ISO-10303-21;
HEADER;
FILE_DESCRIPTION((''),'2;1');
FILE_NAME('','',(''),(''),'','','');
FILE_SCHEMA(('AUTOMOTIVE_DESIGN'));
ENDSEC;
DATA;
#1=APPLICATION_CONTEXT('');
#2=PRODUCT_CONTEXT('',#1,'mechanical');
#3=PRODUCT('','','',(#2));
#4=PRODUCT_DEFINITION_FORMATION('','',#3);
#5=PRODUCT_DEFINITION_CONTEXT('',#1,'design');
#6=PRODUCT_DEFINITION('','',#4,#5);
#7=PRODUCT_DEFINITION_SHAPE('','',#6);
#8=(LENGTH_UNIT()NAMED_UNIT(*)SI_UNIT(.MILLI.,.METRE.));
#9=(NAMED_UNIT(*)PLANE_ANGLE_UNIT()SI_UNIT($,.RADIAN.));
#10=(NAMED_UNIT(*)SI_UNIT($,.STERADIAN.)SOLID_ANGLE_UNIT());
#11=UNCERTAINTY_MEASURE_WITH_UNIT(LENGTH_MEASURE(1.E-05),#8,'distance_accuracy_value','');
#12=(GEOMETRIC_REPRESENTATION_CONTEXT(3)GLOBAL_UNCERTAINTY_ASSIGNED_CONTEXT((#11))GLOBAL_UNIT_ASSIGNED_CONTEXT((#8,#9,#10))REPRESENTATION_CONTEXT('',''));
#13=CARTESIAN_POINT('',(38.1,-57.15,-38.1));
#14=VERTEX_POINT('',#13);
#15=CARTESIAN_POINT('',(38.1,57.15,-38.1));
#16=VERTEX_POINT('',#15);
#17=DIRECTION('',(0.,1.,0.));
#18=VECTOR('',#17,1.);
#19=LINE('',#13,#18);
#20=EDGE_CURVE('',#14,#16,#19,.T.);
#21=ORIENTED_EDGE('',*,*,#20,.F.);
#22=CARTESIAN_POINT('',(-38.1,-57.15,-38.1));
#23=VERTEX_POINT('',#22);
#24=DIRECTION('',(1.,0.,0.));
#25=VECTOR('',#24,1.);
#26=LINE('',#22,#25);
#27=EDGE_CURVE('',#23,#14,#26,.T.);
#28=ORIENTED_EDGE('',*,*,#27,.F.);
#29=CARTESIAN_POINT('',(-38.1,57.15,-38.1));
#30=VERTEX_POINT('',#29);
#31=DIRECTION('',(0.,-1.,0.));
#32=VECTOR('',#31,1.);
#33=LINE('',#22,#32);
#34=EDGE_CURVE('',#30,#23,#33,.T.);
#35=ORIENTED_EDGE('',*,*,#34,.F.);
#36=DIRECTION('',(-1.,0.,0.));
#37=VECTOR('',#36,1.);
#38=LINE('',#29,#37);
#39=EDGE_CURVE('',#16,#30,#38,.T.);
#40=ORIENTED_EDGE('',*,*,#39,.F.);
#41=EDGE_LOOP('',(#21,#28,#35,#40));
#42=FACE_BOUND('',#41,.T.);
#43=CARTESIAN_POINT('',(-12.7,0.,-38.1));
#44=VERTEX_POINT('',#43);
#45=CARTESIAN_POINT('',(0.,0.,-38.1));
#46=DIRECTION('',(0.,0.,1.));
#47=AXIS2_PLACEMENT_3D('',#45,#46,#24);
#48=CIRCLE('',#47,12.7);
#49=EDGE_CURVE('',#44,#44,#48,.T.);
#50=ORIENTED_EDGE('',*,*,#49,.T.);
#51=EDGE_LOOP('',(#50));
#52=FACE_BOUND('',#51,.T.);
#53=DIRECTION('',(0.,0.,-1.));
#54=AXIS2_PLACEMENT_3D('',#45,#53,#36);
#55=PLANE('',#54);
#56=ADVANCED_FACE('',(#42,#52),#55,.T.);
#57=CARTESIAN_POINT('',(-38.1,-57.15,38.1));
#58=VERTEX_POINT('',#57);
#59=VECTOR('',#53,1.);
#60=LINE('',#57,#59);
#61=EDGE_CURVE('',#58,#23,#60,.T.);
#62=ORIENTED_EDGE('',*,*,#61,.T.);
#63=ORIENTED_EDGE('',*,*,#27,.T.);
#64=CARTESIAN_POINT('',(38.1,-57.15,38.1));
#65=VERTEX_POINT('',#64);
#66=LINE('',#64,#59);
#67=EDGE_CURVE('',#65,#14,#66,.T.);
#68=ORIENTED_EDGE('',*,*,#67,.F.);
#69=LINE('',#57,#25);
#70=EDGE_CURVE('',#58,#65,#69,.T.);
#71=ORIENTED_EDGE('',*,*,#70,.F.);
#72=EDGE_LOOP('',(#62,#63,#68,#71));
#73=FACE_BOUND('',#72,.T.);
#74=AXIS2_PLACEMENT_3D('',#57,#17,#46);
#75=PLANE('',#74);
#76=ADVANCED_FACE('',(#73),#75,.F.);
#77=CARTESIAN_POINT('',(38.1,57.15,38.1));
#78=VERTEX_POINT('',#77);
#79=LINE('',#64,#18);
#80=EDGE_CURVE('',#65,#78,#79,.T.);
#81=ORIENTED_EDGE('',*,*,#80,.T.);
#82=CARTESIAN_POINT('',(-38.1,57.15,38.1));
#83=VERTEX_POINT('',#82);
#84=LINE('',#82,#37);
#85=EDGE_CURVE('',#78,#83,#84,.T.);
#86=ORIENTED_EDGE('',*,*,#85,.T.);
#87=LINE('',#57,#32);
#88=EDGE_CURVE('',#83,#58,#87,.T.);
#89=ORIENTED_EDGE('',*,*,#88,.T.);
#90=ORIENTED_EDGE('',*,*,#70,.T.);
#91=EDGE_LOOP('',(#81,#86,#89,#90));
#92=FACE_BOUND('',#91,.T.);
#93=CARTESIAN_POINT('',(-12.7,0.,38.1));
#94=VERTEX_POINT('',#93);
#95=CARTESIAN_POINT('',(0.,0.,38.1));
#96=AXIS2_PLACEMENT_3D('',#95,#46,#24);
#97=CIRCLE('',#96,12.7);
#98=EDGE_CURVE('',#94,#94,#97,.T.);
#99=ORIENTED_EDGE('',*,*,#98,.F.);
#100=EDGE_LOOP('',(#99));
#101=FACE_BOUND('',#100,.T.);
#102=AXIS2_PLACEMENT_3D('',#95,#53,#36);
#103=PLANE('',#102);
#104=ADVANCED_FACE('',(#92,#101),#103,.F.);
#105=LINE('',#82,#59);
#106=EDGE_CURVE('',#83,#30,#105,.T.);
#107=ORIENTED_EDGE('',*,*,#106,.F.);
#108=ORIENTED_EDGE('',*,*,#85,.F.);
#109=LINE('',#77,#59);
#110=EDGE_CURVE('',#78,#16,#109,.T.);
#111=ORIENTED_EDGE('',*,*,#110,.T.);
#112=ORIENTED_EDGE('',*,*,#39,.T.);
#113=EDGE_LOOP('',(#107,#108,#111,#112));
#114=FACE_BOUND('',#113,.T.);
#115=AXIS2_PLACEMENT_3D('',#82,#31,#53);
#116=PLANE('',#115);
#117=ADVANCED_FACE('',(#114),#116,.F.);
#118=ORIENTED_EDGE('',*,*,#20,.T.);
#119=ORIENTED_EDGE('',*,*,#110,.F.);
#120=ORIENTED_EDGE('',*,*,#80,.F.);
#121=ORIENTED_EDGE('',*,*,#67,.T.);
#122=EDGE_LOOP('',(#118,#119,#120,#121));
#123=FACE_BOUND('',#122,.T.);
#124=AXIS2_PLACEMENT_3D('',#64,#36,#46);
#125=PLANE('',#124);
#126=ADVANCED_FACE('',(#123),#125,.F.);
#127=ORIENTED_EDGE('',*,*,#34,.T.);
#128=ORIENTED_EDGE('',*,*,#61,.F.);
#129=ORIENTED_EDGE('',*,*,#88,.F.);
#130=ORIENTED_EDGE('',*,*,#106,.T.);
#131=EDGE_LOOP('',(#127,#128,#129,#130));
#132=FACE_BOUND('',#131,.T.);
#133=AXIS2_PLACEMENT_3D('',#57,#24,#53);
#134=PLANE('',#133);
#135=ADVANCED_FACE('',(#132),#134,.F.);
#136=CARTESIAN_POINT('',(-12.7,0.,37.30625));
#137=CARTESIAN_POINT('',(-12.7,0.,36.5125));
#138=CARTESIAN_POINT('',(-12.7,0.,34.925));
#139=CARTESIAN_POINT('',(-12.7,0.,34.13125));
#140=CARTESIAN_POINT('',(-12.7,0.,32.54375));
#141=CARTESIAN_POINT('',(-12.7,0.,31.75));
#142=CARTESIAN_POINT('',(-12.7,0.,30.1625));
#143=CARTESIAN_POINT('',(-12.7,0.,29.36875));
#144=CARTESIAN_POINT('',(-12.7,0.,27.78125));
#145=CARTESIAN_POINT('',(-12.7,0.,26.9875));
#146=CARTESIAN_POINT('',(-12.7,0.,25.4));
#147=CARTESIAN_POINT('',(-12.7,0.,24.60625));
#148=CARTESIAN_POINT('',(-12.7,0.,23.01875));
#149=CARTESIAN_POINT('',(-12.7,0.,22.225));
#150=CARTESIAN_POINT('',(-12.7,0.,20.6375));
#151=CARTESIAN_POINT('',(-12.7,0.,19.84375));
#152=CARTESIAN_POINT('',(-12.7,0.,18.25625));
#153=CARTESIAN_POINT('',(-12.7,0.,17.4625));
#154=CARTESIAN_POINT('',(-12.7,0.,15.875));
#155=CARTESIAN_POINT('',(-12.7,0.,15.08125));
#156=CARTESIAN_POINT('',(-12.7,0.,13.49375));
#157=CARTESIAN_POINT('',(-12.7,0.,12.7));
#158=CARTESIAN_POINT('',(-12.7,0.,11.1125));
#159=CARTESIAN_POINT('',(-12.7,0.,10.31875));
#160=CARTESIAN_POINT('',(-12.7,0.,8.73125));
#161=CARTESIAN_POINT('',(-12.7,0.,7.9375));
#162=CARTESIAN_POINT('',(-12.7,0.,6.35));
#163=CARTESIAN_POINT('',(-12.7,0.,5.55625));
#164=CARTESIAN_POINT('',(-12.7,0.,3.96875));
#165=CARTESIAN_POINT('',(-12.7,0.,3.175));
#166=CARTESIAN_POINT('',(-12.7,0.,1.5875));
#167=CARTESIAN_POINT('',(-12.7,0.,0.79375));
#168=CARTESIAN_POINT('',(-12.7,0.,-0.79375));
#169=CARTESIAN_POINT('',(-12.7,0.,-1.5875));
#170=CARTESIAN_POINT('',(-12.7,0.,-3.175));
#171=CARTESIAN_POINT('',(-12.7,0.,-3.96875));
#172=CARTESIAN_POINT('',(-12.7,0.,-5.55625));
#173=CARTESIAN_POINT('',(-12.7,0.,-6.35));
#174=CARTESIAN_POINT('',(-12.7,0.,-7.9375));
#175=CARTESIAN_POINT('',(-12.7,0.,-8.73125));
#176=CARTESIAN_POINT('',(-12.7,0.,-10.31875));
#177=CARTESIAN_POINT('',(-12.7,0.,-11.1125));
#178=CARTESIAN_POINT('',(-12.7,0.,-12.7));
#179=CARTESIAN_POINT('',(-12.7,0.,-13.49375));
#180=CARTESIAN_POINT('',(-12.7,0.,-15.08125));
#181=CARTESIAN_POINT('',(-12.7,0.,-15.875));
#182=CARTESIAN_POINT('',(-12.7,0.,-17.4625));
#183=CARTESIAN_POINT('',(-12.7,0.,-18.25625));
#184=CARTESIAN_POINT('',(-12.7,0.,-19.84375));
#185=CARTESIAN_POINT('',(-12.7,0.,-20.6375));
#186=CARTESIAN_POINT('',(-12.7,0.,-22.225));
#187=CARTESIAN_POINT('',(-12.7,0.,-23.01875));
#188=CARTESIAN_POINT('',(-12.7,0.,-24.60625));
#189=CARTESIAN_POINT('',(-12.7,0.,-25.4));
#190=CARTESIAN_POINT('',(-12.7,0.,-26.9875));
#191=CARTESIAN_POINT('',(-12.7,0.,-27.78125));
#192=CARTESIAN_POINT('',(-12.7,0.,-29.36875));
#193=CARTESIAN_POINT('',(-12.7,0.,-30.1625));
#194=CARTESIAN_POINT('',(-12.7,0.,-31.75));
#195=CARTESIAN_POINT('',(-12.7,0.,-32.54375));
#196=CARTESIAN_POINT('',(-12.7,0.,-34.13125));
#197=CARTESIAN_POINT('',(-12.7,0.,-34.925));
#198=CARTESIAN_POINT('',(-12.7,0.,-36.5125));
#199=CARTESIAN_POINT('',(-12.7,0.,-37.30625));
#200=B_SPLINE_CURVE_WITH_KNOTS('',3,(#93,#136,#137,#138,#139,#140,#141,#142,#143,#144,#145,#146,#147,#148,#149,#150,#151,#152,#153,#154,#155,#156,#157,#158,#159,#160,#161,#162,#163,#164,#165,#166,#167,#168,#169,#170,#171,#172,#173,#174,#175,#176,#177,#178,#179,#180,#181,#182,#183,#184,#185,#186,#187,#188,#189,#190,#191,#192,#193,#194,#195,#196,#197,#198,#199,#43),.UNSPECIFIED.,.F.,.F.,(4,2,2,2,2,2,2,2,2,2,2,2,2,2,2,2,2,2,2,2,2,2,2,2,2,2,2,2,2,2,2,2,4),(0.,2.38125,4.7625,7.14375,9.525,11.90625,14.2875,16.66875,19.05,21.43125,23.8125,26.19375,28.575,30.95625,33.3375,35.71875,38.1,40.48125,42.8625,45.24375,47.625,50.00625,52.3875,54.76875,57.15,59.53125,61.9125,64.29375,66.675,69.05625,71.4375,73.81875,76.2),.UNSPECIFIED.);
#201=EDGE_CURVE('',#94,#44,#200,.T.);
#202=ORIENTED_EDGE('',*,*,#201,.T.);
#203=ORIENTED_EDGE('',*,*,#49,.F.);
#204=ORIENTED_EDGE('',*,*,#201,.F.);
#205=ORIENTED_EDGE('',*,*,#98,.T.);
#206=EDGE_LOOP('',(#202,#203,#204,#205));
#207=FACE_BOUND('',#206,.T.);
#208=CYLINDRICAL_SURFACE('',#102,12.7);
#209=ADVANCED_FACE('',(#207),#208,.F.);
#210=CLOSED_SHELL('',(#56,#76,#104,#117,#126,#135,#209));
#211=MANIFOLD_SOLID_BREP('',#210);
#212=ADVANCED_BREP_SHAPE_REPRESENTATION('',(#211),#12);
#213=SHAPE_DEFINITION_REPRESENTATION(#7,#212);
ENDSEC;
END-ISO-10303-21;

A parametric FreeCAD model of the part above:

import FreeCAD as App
import Part
import Sketcher
from FreeCAD import Vector
Q = App.Units.Quantity

doc = App.newDocument("Part")
body = doc.addObject("PartDesign::Body", "Body")

# Sketch on XY plane
sketch1 = doc.addObject("Sketcher::SketchObject", "Sketch")
body.addObject(sketch1)
sketch1.AttachmentSupport = (doc.XY_Plane, [""])
sketch1.MapMode = "FlatFace"
sketch1.addGeometry([
    Part.LineSegment(Vector(-38.1, 57.15, 0), Vector(-38.1, -57.15, 0)),  # 0
    Part.LineSegment(Vector(-38.1, -57.15, 0), Vector(38.1, -57.15, 0)),  # 1
    Part.LineSegment(Vector(38.1, -57.15, 0), Vector(38.1, 57.15, 0)),  # 2
    Part.LineSegment(Vector(38.1, 57.15, 0), Vector(-38.1, 57.15, 0)),  # 3
    Part.Circle(Vector(0, 0, 0), Vector(0, 0, 1), 12.7),  # 4
], False)
sketch1.addConstraint([
    Sketcher.Constraint("Coincident", 0, 2, 1, 1),
    Sketcher.Constraint("Coincident", 1, 2, 2, 1),
    Sketcher.Constraint("Coincident", 2, 2, 3, 1),
    Sketcher.Constraint("Coincident", 3, 2, 0, 1),
    Sketcher.Constraint("Vertical", 0),
    Sketcher.Constraint("Horizontal", 1),
    Sketcher.Constraint("Vertical", 2),
    Sketcher.Constraint("Horizontal", 3),
    Sketcher.Constraint("Coincident", 4, 3, -1, 1),
    Sketcher.Constraint("Symmetric", 0, 2, 2, 2, -1, 1),
    Sketcher.Constraint("Diameter", 4, Q("1 in")),
    Sketcher.Constraint("DistanceX", 1, 1, 1, 2, Q("3 in")),
    Sketcher.Constraint("DistanceY", 0, 2, 0, 1, Q("4.5 in")),
])
pad1 = doc.addObject("PartDesign::Pad", "Pad")
body.addObject(pad1)
pad1.Profile = sketch1
pad1.Length = Q("3 in")
pad1.Midplane = True

doc.recompute()
